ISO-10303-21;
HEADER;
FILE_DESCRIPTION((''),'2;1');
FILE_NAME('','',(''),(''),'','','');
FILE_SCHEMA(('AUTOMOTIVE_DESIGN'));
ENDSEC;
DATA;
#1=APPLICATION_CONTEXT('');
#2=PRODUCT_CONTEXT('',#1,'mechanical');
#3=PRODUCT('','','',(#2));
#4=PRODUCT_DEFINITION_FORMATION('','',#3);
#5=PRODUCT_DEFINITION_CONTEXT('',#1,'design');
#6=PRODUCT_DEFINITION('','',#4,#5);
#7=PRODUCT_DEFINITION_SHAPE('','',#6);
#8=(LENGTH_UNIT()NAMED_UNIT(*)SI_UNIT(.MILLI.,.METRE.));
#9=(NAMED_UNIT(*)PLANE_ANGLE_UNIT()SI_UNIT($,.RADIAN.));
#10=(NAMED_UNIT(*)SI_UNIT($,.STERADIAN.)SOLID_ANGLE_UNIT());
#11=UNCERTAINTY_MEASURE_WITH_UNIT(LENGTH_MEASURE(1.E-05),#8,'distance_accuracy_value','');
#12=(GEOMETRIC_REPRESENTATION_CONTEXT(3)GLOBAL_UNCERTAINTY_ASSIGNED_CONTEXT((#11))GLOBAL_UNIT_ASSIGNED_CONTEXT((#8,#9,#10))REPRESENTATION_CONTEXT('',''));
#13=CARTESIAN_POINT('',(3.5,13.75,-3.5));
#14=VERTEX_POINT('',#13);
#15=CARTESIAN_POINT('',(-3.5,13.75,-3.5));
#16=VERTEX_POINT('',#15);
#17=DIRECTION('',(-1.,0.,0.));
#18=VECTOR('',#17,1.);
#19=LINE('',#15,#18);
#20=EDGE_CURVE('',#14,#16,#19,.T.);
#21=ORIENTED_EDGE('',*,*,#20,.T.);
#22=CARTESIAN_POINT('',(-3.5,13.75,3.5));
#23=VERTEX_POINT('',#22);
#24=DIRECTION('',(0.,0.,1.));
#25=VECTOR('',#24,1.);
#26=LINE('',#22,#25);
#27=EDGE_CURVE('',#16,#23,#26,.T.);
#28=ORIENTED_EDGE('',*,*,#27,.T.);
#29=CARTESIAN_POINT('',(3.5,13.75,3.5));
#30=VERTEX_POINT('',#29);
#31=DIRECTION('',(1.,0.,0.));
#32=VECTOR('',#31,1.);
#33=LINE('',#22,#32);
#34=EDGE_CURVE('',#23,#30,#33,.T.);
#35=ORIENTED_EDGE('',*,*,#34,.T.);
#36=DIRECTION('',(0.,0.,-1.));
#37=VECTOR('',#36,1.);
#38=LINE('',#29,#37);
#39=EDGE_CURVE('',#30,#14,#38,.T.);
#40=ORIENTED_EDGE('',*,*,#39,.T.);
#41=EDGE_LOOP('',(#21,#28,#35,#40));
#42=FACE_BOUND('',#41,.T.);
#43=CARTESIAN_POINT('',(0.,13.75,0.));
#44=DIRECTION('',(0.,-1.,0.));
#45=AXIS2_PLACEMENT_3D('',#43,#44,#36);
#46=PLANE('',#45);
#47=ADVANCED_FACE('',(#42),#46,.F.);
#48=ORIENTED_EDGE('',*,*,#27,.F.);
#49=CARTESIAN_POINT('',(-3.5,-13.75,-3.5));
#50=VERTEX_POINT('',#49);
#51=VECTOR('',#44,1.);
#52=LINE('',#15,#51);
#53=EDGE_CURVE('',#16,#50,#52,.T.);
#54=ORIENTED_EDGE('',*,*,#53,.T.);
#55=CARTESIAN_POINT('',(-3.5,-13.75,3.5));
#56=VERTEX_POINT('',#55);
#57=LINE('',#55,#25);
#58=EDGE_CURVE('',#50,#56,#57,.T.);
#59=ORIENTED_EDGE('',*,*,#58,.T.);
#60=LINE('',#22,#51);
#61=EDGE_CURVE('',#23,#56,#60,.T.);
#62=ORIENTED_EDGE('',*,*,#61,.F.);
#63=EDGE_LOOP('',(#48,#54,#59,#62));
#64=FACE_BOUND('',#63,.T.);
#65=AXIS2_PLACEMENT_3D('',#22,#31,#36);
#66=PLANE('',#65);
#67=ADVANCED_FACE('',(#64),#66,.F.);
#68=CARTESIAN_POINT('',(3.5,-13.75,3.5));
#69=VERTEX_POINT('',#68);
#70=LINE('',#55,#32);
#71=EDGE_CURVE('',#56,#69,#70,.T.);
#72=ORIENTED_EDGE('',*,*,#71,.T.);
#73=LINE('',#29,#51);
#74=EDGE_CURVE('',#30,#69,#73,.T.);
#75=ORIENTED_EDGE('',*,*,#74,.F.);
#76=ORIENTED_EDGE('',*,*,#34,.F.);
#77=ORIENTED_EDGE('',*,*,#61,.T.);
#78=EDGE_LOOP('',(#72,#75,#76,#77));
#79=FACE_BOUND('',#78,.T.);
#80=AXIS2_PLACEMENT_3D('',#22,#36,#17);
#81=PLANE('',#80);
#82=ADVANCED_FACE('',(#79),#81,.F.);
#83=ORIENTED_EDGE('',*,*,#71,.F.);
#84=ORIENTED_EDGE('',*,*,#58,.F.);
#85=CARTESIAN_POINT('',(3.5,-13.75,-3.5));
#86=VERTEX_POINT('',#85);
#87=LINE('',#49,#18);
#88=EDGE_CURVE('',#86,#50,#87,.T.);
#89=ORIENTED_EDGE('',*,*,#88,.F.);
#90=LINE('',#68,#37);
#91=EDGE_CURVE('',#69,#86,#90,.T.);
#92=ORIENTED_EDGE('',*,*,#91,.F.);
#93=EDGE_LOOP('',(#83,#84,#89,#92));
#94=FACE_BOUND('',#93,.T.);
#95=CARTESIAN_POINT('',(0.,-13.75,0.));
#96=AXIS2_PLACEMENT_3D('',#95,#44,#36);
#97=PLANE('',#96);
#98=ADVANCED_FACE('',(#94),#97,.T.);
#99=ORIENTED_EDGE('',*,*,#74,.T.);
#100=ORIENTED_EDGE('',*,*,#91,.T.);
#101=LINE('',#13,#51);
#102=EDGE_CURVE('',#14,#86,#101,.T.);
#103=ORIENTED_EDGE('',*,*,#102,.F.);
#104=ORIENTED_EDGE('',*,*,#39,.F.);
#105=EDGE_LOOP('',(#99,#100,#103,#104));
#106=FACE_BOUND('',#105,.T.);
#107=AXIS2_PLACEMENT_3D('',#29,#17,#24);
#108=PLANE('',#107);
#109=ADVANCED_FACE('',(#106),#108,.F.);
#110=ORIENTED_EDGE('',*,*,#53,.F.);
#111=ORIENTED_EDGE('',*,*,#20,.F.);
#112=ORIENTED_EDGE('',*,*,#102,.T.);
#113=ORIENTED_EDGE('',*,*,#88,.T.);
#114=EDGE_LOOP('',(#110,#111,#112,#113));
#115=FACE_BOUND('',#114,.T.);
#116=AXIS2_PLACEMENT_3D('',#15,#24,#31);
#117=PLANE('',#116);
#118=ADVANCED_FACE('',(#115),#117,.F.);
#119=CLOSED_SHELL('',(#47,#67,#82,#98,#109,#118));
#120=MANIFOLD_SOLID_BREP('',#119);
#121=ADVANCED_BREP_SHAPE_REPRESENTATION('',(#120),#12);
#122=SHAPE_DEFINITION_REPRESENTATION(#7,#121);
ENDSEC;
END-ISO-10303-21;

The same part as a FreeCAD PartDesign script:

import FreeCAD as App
import Part
import Sketcher
from FreeCAD import Vector


def add_polygon(sketch, points):
    """Adds a closed chain of lines whose ends are joined by coincident constraints."""
    first, n = sketch.GeometryCount, len(points)
    for a, b in zip(points, points[1:] + points[:1]):
        sketch.addGeometry(Part.LineSegment(App.Vector(*a, 0), App.Vector(*b, 0)), False)
    for i in range(n):
        sketch.addConstraint(Sketcher.Constraint("Coincident", first + i, 2, first + (i + 1) % n, 1))

doc = App.newDocument("Part")
body = doc.addObject("PartDesign::Body", "Body")

# Sketch on XZ plane
sketch1 = body.newObject("Sketcher::SketchObject", "Sketch")
sketch1.AttachmentSupport = (doc.getObject("XZ_Plane"), [""])
sketch1.MapMode = "FlatFace"
add_polygon(sketch1, [(-3.5, -3.5), (-3.5, 3.5), (3.5, 3.5), (3.5, -3.5)])  # lines 0-3
sketch1.addConstraint(Sketcher.Constraint("Vertical", 0))
sketch1.addConstraint(Sketcher.Constraint("Horizontal", 1))
sketch1.addConstraint(Sketcher.Constraint("Vertical", 2))
sketch1.addConstraint(Sketcher.Constraint("Horizontal", 3))
sketch1.addConstraint(Sketcher.Constraint("Symmetric", 0, 2, 2, 2, -1, 1))
sketch1.addConstraint(Sketcher.Constraint("Equal", 3, 0))
sketch1.addConstraint(Sketcher.Constraint("DistanceX", 1, 1, 1, 2, 7.0))
pad1 = body.newObject("PartDesign::Pad", "Pad")
pad1.Profile = sketch1
pad1.Length = 27.5
pad1.Midplane = True

doc.recompute()
